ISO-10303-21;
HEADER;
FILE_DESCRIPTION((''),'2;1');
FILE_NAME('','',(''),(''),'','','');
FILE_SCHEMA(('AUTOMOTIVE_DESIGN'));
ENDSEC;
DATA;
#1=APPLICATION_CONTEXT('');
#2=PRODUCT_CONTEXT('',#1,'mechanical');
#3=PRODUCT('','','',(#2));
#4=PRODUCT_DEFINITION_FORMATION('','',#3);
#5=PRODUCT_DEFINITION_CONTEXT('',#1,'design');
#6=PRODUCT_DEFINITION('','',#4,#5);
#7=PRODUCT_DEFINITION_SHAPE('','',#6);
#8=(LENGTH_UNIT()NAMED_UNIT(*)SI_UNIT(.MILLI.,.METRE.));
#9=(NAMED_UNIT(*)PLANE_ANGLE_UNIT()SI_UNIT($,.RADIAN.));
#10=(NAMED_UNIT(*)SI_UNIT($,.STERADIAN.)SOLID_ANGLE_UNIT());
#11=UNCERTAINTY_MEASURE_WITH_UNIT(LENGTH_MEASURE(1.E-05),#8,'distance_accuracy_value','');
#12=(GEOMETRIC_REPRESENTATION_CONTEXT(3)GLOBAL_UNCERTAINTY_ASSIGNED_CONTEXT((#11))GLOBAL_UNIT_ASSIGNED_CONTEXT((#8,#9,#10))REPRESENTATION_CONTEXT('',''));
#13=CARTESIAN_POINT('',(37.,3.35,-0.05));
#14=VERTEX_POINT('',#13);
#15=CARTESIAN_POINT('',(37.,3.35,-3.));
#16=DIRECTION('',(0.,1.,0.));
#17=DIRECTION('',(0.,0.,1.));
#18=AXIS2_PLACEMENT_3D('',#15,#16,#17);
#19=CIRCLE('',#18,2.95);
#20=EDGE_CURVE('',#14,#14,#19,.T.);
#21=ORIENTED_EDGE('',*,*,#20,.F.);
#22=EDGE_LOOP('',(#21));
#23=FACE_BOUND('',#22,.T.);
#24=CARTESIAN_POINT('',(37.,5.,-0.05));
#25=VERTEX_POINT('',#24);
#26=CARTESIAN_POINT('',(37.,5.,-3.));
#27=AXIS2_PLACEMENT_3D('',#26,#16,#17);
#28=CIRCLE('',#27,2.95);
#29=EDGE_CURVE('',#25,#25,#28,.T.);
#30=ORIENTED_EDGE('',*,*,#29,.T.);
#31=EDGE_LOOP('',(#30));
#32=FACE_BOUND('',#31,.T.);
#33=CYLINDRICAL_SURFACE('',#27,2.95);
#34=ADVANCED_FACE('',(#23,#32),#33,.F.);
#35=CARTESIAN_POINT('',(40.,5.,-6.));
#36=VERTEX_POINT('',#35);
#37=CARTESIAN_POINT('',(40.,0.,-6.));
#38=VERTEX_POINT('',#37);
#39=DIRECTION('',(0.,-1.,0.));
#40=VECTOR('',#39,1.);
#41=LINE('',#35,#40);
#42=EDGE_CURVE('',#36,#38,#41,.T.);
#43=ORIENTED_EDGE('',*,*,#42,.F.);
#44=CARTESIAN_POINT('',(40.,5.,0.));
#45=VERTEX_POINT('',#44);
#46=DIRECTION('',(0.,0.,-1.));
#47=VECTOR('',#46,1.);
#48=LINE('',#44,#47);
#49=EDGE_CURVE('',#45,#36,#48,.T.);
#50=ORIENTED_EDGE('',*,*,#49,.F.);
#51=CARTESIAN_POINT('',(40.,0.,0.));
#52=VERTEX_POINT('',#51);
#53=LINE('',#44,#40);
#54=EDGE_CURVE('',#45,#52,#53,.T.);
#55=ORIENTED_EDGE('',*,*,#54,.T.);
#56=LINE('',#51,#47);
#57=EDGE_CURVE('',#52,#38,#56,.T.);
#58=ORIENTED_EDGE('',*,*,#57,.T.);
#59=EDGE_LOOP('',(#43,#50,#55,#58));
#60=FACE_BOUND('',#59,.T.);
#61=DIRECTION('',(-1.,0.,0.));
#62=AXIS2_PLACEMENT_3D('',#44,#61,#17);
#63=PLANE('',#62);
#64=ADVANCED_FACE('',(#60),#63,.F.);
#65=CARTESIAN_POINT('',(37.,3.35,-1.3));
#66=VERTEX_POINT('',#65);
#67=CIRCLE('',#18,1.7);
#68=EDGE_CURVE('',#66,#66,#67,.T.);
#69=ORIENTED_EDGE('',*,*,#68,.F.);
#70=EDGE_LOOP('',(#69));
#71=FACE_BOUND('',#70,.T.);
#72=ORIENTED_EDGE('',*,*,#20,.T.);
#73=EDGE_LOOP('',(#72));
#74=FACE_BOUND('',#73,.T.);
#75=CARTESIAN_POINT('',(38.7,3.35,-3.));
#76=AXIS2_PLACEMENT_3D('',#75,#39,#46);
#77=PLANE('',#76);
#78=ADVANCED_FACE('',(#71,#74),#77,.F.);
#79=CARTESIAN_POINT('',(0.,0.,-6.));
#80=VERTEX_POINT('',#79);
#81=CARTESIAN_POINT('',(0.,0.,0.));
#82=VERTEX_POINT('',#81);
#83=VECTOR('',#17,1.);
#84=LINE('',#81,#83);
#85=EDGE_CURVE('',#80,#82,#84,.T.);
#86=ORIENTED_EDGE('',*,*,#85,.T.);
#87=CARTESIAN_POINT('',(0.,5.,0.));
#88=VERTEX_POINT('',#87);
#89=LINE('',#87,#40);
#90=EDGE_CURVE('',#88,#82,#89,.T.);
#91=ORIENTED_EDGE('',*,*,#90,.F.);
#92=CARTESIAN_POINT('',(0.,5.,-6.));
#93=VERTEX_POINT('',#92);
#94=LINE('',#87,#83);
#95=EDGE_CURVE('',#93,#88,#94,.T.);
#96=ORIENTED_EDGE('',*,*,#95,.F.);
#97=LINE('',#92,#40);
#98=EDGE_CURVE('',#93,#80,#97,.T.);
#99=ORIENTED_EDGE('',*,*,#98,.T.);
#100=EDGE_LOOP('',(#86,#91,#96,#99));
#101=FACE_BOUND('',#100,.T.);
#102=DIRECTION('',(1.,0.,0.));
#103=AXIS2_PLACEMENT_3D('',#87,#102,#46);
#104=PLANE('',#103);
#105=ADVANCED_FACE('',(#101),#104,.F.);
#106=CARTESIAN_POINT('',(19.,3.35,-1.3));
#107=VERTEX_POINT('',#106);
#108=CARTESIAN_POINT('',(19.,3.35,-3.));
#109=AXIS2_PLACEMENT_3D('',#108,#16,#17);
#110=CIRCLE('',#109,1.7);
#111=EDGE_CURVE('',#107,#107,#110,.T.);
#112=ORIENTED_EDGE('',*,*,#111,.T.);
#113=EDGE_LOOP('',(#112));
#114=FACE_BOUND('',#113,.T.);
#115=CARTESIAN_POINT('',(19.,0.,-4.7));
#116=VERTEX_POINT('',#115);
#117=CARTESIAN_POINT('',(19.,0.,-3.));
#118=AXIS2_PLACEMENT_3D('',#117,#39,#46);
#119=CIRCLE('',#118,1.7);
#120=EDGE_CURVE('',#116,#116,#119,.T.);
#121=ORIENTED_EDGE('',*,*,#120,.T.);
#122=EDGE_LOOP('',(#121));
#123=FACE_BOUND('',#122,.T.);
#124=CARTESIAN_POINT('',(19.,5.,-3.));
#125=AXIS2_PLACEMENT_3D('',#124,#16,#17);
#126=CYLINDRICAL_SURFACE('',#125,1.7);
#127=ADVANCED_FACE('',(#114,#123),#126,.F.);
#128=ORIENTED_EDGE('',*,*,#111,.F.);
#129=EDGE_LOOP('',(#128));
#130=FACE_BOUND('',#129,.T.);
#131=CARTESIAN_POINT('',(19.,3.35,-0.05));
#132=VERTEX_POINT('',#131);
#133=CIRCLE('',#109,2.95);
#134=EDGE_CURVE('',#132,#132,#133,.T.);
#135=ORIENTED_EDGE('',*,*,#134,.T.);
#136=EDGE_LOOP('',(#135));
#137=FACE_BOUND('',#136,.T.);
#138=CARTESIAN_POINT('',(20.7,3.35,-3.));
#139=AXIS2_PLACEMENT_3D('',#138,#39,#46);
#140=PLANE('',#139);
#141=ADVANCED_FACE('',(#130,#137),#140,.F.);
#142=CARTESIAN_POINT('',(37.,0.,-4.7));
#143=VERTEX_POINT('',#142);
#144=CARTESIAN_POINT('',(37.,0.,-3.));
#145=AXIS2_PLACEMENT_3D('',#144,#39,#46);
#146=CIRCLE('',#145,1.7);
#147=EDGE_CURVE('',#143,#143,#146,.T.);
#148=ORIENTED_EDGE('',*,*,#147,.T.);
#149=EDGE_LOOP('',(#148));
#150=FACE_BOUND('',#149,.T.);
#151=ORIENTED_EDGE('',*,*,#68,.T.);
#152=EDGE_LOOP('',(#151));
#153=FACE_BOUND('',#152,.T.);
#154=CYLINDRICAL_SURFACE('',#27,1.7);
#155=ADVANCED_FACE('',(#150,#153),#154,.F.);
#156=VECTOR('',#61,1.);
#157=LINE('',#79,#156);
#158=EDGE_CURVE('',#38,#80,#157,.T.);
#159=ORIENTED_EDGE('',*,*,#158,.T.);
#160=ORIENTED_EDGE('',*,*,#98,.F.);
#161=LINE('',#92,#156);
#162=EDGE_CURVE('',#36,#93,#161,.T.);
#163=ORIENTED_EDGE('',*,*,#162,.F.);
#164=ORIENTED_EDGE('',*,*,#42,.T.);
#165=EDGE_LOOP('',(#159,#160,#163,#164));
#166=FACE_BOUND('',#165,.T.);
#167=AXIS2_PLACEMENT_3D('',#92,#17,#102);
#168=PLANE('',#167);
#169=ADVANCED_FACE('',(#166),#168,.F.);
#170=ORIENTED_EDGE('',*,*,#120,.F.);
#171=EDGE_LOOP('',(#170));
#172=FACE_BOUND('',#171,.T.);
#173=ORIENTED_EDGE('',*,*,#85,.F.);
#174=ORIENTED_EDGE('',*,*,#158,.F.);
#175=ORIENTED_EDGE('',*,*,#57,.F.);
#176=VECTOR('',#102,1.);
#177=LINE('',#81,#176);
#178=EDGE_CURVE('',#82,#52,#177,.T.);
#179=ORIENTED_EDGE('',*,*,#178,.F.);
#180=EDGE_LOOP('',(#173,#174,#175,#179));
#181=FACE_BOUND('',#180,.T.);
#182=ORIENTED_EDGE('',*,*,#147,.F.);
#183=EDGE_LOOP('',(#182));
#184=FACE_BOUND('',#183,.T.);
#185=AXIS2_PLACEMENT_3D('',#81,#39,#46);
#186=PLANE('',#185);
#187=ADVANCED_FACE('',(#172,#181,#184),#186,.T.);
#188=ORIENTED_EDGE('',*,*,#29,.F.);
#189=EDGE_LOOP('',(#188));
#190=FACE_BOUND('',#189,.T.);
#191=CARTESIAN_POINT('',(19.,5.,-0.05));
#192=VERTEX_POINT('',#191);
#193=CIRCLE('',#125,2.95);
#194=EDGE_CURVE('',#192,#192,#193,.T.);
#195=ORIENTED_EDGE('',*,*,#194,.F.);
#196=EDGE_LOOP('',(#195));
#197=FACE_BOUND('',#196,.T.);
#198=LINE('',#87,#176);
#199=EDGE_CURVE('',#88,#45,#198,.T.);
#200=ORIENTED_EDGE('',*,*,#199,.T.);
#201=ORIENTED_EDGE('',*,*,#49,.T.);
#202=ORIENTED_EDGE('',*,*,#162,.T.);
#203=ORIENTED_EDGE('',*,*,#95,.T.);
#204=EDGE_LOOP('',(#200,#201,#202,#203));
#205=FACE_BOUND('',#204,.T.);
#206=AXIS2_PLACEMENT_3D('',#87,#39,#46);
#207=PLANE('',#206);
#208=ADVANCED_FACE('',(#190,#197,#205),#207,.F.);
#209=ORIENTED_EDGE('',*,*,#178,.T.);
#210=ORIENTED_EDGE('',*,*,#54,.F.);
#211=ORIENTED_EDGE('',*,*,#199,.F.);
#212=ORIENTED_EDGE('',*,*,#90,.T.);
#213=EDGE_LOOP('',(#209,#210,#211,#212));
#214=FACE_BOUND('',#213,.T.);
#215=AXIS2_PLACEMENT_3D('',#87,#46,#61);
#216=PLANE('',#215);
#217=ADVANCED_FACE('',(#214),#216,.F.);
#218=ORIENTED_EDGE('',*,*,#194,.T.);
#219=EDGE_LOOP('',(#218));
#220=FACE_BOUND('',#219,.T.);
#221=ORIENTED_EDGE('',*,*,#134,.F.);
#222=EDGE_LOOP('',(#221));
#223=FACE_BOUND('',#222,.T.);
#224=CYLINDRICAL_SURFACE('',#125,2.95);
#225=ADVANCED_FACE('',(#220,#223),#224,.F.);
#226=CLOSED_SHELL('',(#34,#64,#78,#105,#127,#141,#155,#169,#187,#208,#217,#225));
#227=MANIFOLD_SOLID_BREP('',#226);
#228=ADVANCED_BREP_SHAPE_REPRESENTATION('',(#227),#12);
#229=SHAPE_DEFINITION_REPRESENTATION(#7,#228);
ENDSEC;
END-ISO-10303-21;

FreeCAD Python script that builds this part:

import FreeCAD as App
import Part
import Sketcher
from FreeCAD import Vector
Q = App.Units.Quantity


def add_polygon(sketch, points):
    """Adds a closed chain of lines whose ends are joined by coincident constraints."""
    first, n = sketch.GeometryCount, len(points)
    for a, b in zip(points, points[1:] + points[:1]):
        sketch.addGeometry(Part.LineSegment(App.Vector(*a, 0), App.Vector(*b, 0)), False)
    for i in range(n):
        sketch.addConstraint(Sketcher.Constraint("Coincident", first + i, 2, first + (i + 1) % n, 1))

doc = App.newDocument("Part")
params = doc.addObject("Spreadsheet::Sheet", "Params")
for row, (alias, value) in enumerate([
    ("sketch1_width", "40 mm"),
    ("sketch1_height", "6 mm"),
    ("pad1_length", "5 mm"),
    ("sketch2_diameter", "3.4 mm"),
    ("hole_diameter", "3.4 mm"),
    ("hole_depth", "7.5 mm"),
    ("hole_cbore_diameter", "5.9 mm"),
    ("hole_cbore_depth", "1.65 mm"),
], start=1):
    params.set(f"A{row}", alias)
    params.set(f"B{row}", "=" + value)
    params.setAlias(f"B{row}", alias)

body = doc.addObject("PartDesign::Body", "Body")

sketch1 = body.newObject("Sketcher::SketchObject", "Sketch")
sketch1.AttachmentSupport = (doc.getObject("XZ_Plane"), [""])
sketch1.MapMode = "FlatFace"
add_polygon(sketch1, [(0, -6), (0, 0), (40, 0), (40, -6)])
sketch1.addConstraint(Sketcher.Constraint("Vertical", 0))
sketch1.addConstraint(Sketcher.Constraint("Horizontal", 1))
sketch1.addConstraint(Sketcher.Constraint("Vertical", 2))
sketch1.addConstraint(Sketcher.Constraint("Horizontal", 3))
sketch1.addConstraint(Sketcher.Constraint("Coincident", 0, 2, -1, 1))
sketch1.addConstraint(Sketcher.Constraint("DistanceX", 1, 1, 1, 2, Q("40 mm")))
sketch1.addConstraint(Sketcher.Constraint("DistanceY", 0, 1, 0, 2, Q("6 mm")))
sketch1.setExpression("Constraints[9]", "Params.sketch1_width")
sketch1.setExpression("Constraints[10]", "Params.sketch1_height")
pad1 = body.newObject("PartDesign::Pad", "Pad")
pad1.Profile = sketch1
pad1.setExpression("Length", "Params.pad1_length")
pad1.Reversed = True

sketch2 = body.newObject("Sketcher::SketchObject", "Sketch001")
sketch2.AttachmentSupport = (doc.getObject("XZ_Plane"), [""])
sketch2.MapMode = "FlatFace"
sketch2.AttachmentOffset = App.Placement(Vector(0, 0, -5), App.Rotation())
sketch2.addGeometry(Part.Circle(Vector(37, -3, 0), Vector(0, 0, 1), 1.7), False)
sketch2.addGeometry(Part.Circle(Vector(19, -3, 0), Vector(0, 0, 1), 1.7), False)
sketch2.addConstraint(Sketcher.Constraint("Equal", 0, 1))
sketch2.addConstraint(Sketcher.Constraint("Horizontal", 0, 3, 1, 3))
sketch2.addConstraint(Sketcher.Constraint("Diameter", 0, Q("3.4 mm")))
sketch2.addConstraint(Sketcher.Constraint("DistanceX", -1, 1, 0, 3, Q("37 mm")))
sketch2.addConstraint(Sketcher.Constraint("DistanceY", 0, 3, -1, 1, Q("3 mm")))
sketch2.addConstraint(Sketcher.Constraint("DistanceX", -1, 1, 1, 3, Q("19 mm")))
sketch2.setExpression("Constraints[2]", "Params.sketch2_diameter")
doc.recompute()
hole = body.newObject("PartDesign::Hole", "Hole")
hole.Profile = sketch2
hole.ThreadType = "None"
hole.setExpression("Diameter", "Params.hole_diameter")
hole.DepthType = "Dimension"
hole.setExpression("Depth", "Params.hole_depth")
hole.DrillPoint = "Angled"
hole.DrillPointAngle = 118
hole.HoleCutType = "Counterbore"
hole.setExpression("HoleCutDiameter", "Params.hole_cbore_diameter")
hole.setExpression("HoleCutDepth", "Params.hole_cbore_depth")
hole.Reversed = True

doc.recompute()
